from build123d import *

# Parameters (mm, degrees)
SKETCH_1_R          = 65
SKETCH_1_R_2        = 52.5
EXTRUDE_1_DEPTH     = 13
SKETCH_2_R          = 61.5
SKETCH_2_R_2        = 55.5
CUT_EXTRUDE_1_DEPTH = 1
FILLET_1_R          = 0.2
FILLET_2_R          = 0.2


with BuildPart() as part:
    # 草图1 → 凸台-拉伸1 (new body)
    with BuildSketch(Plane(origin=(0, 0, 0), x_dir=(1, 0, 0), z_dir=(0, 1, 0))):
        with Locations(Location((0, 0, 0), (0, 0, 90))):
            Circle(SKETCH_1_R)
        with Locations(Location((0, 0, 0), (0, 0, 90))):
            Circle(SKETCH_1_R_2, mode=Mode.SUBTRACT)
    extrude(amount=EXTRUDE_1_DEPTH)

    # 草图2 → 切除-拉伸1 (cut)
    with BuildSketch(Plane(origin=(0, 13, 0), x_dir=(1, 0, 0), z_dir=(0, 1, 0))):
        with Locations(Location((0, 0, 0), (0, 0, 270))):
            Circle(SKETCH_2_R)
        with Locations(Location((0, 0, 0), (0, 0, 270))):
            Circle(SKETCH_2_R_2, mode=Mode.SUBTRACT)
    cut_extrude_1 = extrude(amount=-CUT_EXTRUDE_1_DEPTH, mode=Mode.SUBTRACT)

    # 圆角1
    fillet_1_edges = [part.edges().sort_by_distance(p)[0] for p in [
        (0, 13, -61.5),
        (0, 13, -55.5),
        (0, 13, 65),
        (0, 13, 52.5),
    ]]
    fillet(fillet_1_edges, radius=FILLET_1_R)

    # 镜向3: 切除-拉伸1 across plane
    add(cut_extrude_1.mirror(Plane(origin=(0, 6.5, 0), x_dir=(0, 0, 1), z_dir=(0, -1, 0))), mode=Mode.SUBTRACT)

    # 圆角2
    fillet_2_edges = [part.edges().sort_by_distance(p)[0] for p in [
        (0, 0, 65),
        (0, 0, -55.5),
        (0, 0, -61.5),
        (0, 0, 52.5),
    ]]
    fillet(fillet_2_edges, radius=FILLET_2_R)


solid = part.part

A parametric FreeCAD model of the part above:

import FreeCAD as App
import Part
import Sketcher
from FreeCAD import Vector


def edges_at(feature, points):
    """Names of the edges that pass closest to the given points."""
    edges = feature.Shape.Edges
    near = lambda p: min(range(len(edges)), key=lambda i: edges[i].distToShape(Part.Vertex(*p))[0])
    return sorted({f"Edge{near(p) + 1}" for p in points})

doc = App.newDocument("Part")
body = doc.addObject("PartDesign::Body", "Body")

sketch1 = body.newObject("Sketcher::SketchObject", "Sketch")
sketch1.AttachmentSupport = (doc.getObject("XZ_Plane"), [""])
sketch1.MapMode = "FlatFace"
sketch1.addGeometry([
    Part.Circle(Vector(0, 0, 0), Vector(0, 0, 1), 65),
    Part.Circle(Vector(0, 0, 0), Vector(0, 0, 1), 52),
], False)
sketch1.addConstraint([
    Sketcher.Constraint("Coincident", 0, 3, -1, 1),
    Sketcher.Constraint("Coincident", 1, 3, -1, 1),
    Sketcher.Constraint("Diameter", 0, 130.0),
    Sketcher.Constraint("Diameter", 1, 105.0),
])
pad1 = body.newObject("PartDesign::Pad", "Pad")
pad1.Profile = sketch1
pad1.Length = 13
pad1.Reversed = True

sketch2 = body.newObject("Sketcher::SketchObject", "Sketch001")
sketch2.AttachmentSupport = (doc.getObject("XZ_Plane"), [""])
sketch2.MapMode = "FlatFace"
sketch2.AttachmentOffset = App.Placement(Vector(0, 0, -13), App.Rotation())
sketch2.addGeometry([
    Part.Circle(Vector(0, 0, 0), Vector(0, 0, 1), 62),
    Part.Circle(Vector(0, 0, 0), Vector(0, 0, 1), 56),
], False)
sketch2.addConstraint([
    Sketcher.Constraint("Coincident", 0, 3, -1, 1),
    Sketcher.Constraint("Coincident", 1, 3, -1, 1),
    Sketcher.Constraint("Diameter", 0, 123.0),
    Sketcher.Constraint("Diameter", 1, 111.0),
])
pocket1 = body.newObject("PartDesign::Pocket", "Pocket")
pocket1.Profile = sketch2
pocket1.Length = 1
pocket1.Reversed = True
doc.recompute()

fillet = body.newObject("PartDesign::Fillet", "Fillet")
fillet.Base = (pocket1, edges_at(pocket1, [
    (0, 13, -61.5),
    (0, 13, -55.5),
    (0, 13, 65),
    (0, 13, 52.5),
]))
fillet.Radius = 0.2
doc.recompute()

datumplane = body.newObject("PartDesign::Plane", "DatumPlane")
datumplane.AttachmentSupport = (doc.getObject("XZ_Plane"), [""])
datumplane.MapMode = "FlatFace"
datumplane.AttachmentOffset = App.Placement(Vector(0, 0, -6.5), App.Rotation())
mirrored = body.newObject("PartDesign::Mirrored", "Mirrored")
mirrored.Originals = [pocket1]
mirrored.MirrorPlane = (datumplane, [""])
body.Tip = mirrored
doc.recompute()

fillet2 = body.newObject("PartDesign::Fillet", "Fillet001")
fillet2.Base = (mirrored, edges_at(mirrored, [
    (0, 0, 65),
    (0, 0, -55.5),
    (0, 0, -61.5),
    (0, 0, 52.5),
]))
fillet2.Radius = 0.2

doc.recompute()
